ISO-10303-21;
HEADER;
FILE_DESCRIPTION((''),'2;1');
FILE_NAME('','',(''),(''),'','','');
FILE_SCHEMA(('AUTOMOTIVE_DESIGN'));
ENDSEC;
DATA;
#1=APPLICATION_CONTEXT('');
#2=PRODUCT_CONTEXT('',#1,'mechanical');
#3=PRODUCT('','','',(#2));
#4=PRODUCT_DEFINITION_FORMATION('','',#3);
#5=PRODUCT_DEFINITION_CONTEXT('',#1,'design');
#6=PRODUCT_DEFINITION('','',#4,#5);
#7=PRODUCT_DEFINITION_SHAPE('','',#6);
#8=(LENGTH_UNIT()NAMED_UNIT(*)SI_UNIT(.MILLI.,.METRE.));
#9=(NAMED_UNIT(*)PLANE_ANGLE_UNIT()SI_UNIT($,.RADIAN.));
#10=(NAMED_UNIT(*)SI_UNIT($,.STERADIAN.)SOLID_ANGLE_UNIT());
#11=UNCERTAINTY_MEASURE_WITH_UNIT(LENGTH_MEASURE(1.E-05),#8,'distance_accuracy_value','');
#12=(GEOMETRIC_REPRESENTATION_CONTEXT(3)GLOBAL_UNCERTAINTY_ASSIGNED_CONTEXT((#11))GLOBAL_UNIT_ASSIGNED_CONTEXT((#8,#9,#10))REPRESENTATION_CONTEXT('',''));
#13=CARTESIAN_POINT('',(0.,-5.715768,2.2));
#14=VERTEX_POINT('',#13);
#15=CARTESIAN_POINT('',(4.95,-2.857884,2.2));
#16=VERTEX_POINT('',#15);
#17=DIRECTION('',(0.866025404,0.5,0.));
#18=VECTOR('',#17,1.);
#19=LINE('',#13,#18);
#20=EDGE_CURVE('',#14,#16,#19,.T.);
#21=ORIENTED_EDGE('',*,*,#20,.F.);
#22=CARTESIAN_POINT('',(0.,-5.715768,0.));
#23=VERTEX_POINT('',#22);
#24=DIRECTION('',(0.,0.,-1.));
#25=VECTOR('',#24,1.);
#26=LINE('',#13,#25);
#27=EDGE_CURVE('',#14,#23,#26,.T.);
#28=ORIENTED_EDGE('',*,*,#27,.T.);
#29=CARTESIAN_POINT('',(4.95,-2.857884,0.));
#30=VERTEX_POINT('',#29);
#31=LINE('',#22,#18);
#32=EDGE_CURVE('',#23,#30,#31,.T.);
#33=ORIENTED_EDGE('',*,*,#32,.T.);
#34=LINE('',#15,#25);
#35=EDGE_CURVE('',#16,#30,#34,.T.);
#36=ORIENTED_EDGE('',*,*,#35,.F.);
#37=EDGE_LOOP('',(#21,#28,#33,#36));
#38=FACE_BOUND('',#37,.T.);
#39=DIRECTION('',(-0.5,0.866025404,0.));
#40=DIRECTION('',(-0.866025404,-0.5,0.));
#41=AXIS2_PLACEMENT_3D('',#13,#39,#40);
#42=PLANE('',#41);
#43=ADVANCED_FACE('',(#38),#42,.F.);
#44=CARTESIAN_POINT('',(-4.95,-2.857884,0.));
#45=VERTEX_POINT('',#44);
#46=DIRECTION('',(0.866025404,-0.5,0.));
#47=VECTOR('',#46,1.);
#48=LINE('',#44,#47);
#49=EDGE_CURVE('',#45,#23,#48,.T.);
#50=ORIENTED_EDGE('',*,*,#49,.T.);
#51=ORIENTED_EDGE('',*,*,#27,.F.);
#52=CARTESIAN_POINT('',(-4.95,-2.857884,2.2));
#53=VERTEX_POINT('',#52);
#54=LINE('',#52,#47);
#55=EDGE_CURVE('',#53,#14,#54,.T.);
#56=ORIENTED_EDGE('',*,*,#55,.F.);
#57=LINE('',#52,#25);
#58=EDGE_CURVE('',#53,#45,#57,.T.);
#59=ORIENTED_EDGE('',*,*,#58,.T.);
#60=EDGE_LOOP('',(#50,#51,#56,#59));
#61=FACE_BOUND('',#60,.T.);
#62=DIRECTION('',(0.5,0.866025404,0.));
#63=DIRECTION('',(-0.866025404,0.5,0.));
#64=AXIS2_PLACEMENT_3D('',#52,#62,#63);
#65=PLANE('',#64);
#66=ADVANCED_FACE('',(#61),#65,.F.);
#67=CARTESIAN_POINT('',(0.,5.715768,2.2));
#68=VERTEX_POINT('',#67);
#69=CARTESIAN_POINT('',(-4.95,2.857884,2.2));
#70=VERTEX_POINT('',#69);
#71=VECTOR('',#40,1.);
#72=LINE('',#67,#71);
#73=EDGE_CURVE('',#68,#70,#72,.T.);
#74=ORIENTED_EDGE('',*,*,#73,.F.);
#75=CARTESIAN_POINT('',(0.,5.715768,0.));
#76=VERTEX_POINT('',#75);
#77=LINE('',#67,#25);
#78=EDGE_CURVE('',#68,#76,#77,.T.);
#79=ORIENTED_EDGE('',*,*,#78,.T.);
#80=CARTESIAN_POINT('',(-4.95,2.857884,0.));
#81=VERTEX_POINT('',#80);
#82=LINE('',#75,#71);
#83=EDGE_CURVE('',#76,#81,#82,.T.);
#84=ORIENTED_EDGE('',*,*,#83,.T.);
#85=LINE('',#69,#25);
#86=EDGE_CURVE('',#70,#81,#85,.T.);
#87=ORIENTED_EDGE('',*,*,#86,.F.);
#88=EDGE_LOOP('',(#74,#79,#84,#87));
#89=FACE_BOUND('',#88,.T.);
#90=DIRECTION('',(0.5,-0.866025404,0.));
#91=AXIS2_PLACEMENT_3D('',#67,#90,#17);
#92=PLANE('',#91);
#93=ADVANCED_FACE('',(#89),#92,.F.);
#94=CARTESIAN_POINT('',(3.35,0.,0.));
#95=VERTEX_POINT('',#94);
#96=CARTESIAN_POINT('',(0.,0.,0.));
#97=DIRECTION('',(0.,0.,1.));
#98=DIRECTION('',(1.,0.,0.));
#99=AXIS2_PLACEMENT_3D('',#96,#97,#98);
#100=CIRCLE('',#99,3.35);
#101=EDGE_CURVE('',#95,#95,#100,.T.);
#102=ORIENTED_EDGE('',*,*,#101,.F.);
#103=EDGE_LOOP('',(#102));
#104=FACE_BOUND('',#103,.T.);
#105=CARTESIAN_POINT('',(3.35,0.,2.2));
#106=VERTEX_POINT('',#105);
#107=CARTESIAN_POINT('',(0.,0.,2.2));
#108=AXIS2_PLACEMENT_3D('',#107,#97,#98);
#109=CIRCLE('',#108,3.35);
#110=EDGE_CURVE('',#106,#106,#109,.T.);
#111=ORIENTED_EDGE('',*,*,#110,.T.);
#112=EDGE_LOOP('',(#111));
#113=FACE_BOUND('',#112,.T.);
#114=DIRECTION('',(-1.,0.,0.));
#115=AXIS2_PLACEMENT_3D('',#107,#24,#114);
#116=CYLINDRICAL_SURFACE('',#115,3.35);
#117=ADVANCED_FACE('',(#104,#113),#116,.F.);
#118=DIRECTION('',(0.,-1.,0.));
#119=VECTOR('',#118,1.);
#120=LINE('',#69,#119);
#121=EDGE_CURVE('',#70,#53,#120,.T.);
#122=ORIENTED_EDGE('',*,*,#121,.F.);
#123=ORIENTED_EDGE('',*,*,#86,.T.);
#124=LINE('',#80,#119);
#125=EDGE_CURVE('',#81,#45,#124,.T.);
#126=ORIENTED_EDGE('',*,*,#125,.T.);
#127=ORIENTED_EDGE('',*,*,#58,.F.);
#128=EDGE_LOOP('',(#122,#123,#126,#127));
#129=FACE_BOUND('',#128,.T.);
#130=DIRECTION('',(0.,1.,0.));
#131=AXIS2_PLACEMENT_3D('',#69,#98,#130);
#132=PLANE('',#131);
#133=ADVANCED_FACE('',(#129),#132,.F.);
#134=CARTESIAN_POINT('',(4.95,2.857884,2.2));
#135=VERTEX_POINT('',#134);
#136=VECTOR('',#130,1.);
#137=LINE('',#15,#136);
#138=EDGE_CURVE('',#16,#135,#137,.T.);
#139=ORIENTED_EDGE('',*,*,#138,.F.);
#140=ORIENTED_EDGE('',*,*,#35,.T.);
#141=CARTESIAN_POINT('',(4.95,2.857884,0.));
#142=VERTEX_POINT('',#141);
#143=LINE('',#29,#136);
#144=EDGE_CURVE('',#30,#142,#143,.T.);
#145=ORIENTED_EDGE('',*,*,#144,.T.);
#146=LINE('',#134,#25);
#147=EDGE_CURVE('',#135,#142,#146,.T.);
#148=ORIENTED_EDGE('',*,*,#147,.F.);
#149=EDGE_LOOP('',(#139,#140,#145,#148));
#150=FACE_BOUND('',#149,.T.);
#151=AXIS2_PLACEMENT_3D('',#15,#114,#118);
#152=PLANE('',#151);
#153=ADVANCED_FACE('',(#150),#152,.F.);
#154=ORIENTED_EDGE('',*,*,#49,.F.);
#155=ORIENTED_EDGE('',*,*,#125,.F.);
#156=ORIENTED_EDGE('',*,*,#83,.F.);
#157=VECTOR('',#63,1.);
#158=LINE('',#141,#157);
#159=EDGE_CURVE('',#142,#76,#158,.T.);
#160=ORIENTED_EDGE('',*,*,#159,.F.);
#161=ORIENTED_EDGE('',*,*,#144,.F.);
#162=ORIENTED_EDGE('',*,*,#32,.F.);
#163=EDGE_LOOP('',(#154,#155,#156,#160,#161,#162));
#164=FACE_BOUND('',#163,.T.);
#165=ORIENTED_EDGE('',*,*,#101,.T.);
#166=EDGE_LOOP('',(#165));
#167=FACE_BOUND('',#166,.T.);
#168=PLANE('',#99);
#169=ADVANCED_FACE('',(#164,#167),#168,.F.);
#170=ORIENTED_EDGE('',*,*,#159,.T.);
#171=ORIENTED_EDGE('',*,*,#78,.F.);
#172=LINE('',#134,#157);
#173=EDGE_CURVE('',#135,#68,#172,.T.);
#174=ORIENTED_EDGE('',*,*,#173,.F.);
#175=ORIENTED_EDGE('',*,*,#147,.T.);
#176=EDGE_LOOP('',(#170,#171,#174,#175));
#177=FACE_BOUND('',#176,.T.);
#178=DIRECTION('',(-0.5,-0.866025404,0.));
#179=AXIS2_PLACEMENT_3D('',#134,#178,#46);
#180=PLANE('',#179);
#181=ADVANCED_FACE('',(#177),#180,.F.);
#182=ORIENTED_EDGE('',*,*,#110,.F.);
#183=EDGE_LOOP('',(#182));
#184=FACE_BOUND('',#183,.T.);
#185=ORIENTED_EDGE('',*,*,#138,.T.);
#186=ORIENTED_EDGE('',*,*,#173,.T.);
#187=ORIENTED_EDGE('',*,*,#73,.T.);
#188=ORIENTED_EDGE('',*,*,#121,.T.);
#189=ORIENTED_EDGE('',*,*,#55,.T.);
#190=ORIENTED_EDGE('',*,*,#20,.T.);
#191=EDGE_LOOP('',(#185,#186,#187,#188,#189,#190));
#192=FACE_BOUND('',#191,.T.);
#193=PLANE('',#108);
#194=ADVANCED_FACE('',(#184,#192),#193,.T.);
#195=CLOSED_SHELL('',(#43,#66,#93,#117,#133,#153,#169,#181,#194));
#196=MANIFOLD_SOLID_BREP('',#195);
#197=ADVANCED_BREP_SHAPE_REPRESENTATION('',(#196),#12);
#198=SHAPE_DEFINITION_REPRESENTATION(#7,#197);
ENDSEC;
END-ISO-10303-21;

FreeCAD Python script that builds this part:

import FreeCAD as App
import Part
import Sketcher

V = App.Vector
Q = App.Units.Quantity


def add_polygon(sketch, points):
    """Adds a closed chain of lines whose ends are joined by coincident constraints."""
    first, n = sketch.GeometryCount, len(points)
    for a, b in zip(points, points[1:] + points[:1]):
        sketch.addGeometry(Part.LineSegment(App.Vector(*a, 0), App.Vector(*b, 0)), False)
    for i in range(n):
        sketch.addConstraint(Sketcher.Constraint("Coincident", first + i, 2, first + (i + 1) % n, 1))

doc = App.newDocument("Part")
body = doc.addObject("PartDesign::Body", "Body")

# Sketch on XY plane
sketch1 = body.newObject("Sketcher::SketchObject", "Sketch")
sketch1.AttachmentSupport = (doc.getObject("XY_Plane"), [""])
sketch1.MapMode = "FlatFace"
add_polygon(sketch1, [(5, 2.9), (0, 5.7), (-5, 2.9), (-5, -2.9), (0, -5.7), (5, -2.9)])  # lines 0-5
sketch1.addGeometry(Part.Circle(V(0, 0, 0), V(0, 0, 1), 3.4), False)  # 6
sketch1.addConstraint([
    Sketcher.Constraint("Vertical", 2),
    Sketcher.Constraint("Vertical", 5),
    Sketcher.Constraint("Coincident", 6, 3, -1, 1),
    Sketcher.Constraint("Symmetric", 0, 2, 3, 2, -1, 1),
    Sketcher.Constraint("Symmetric", 1, 2, 4, 2, -1, 1),
    Sketcher.Constraint("PointOnObject", 0, 2, -2),
    Sketcher.Constraint("Parallel", 0, 3),
    Sketcher.Constraint("Horizontal", 2, 2, 4, 2),
    Sketcher.Constraint("Diameter", 6, 6.7),
    Sketcher.Constraint("Angle", 0, Q("150 deg")),
    Sketcher.Constraint("DistanceX", 2, 2, 4, 2, 9.9),
    Sketcher.Constraint("DistanceY", 2, 2, 2, 1, 5.715768),
])
pad1 = body.newObject("PartDesign::Pad", "Pad")
pad1.Profile = sketch1
pad1.Length = 2.2

doc.recompute()
